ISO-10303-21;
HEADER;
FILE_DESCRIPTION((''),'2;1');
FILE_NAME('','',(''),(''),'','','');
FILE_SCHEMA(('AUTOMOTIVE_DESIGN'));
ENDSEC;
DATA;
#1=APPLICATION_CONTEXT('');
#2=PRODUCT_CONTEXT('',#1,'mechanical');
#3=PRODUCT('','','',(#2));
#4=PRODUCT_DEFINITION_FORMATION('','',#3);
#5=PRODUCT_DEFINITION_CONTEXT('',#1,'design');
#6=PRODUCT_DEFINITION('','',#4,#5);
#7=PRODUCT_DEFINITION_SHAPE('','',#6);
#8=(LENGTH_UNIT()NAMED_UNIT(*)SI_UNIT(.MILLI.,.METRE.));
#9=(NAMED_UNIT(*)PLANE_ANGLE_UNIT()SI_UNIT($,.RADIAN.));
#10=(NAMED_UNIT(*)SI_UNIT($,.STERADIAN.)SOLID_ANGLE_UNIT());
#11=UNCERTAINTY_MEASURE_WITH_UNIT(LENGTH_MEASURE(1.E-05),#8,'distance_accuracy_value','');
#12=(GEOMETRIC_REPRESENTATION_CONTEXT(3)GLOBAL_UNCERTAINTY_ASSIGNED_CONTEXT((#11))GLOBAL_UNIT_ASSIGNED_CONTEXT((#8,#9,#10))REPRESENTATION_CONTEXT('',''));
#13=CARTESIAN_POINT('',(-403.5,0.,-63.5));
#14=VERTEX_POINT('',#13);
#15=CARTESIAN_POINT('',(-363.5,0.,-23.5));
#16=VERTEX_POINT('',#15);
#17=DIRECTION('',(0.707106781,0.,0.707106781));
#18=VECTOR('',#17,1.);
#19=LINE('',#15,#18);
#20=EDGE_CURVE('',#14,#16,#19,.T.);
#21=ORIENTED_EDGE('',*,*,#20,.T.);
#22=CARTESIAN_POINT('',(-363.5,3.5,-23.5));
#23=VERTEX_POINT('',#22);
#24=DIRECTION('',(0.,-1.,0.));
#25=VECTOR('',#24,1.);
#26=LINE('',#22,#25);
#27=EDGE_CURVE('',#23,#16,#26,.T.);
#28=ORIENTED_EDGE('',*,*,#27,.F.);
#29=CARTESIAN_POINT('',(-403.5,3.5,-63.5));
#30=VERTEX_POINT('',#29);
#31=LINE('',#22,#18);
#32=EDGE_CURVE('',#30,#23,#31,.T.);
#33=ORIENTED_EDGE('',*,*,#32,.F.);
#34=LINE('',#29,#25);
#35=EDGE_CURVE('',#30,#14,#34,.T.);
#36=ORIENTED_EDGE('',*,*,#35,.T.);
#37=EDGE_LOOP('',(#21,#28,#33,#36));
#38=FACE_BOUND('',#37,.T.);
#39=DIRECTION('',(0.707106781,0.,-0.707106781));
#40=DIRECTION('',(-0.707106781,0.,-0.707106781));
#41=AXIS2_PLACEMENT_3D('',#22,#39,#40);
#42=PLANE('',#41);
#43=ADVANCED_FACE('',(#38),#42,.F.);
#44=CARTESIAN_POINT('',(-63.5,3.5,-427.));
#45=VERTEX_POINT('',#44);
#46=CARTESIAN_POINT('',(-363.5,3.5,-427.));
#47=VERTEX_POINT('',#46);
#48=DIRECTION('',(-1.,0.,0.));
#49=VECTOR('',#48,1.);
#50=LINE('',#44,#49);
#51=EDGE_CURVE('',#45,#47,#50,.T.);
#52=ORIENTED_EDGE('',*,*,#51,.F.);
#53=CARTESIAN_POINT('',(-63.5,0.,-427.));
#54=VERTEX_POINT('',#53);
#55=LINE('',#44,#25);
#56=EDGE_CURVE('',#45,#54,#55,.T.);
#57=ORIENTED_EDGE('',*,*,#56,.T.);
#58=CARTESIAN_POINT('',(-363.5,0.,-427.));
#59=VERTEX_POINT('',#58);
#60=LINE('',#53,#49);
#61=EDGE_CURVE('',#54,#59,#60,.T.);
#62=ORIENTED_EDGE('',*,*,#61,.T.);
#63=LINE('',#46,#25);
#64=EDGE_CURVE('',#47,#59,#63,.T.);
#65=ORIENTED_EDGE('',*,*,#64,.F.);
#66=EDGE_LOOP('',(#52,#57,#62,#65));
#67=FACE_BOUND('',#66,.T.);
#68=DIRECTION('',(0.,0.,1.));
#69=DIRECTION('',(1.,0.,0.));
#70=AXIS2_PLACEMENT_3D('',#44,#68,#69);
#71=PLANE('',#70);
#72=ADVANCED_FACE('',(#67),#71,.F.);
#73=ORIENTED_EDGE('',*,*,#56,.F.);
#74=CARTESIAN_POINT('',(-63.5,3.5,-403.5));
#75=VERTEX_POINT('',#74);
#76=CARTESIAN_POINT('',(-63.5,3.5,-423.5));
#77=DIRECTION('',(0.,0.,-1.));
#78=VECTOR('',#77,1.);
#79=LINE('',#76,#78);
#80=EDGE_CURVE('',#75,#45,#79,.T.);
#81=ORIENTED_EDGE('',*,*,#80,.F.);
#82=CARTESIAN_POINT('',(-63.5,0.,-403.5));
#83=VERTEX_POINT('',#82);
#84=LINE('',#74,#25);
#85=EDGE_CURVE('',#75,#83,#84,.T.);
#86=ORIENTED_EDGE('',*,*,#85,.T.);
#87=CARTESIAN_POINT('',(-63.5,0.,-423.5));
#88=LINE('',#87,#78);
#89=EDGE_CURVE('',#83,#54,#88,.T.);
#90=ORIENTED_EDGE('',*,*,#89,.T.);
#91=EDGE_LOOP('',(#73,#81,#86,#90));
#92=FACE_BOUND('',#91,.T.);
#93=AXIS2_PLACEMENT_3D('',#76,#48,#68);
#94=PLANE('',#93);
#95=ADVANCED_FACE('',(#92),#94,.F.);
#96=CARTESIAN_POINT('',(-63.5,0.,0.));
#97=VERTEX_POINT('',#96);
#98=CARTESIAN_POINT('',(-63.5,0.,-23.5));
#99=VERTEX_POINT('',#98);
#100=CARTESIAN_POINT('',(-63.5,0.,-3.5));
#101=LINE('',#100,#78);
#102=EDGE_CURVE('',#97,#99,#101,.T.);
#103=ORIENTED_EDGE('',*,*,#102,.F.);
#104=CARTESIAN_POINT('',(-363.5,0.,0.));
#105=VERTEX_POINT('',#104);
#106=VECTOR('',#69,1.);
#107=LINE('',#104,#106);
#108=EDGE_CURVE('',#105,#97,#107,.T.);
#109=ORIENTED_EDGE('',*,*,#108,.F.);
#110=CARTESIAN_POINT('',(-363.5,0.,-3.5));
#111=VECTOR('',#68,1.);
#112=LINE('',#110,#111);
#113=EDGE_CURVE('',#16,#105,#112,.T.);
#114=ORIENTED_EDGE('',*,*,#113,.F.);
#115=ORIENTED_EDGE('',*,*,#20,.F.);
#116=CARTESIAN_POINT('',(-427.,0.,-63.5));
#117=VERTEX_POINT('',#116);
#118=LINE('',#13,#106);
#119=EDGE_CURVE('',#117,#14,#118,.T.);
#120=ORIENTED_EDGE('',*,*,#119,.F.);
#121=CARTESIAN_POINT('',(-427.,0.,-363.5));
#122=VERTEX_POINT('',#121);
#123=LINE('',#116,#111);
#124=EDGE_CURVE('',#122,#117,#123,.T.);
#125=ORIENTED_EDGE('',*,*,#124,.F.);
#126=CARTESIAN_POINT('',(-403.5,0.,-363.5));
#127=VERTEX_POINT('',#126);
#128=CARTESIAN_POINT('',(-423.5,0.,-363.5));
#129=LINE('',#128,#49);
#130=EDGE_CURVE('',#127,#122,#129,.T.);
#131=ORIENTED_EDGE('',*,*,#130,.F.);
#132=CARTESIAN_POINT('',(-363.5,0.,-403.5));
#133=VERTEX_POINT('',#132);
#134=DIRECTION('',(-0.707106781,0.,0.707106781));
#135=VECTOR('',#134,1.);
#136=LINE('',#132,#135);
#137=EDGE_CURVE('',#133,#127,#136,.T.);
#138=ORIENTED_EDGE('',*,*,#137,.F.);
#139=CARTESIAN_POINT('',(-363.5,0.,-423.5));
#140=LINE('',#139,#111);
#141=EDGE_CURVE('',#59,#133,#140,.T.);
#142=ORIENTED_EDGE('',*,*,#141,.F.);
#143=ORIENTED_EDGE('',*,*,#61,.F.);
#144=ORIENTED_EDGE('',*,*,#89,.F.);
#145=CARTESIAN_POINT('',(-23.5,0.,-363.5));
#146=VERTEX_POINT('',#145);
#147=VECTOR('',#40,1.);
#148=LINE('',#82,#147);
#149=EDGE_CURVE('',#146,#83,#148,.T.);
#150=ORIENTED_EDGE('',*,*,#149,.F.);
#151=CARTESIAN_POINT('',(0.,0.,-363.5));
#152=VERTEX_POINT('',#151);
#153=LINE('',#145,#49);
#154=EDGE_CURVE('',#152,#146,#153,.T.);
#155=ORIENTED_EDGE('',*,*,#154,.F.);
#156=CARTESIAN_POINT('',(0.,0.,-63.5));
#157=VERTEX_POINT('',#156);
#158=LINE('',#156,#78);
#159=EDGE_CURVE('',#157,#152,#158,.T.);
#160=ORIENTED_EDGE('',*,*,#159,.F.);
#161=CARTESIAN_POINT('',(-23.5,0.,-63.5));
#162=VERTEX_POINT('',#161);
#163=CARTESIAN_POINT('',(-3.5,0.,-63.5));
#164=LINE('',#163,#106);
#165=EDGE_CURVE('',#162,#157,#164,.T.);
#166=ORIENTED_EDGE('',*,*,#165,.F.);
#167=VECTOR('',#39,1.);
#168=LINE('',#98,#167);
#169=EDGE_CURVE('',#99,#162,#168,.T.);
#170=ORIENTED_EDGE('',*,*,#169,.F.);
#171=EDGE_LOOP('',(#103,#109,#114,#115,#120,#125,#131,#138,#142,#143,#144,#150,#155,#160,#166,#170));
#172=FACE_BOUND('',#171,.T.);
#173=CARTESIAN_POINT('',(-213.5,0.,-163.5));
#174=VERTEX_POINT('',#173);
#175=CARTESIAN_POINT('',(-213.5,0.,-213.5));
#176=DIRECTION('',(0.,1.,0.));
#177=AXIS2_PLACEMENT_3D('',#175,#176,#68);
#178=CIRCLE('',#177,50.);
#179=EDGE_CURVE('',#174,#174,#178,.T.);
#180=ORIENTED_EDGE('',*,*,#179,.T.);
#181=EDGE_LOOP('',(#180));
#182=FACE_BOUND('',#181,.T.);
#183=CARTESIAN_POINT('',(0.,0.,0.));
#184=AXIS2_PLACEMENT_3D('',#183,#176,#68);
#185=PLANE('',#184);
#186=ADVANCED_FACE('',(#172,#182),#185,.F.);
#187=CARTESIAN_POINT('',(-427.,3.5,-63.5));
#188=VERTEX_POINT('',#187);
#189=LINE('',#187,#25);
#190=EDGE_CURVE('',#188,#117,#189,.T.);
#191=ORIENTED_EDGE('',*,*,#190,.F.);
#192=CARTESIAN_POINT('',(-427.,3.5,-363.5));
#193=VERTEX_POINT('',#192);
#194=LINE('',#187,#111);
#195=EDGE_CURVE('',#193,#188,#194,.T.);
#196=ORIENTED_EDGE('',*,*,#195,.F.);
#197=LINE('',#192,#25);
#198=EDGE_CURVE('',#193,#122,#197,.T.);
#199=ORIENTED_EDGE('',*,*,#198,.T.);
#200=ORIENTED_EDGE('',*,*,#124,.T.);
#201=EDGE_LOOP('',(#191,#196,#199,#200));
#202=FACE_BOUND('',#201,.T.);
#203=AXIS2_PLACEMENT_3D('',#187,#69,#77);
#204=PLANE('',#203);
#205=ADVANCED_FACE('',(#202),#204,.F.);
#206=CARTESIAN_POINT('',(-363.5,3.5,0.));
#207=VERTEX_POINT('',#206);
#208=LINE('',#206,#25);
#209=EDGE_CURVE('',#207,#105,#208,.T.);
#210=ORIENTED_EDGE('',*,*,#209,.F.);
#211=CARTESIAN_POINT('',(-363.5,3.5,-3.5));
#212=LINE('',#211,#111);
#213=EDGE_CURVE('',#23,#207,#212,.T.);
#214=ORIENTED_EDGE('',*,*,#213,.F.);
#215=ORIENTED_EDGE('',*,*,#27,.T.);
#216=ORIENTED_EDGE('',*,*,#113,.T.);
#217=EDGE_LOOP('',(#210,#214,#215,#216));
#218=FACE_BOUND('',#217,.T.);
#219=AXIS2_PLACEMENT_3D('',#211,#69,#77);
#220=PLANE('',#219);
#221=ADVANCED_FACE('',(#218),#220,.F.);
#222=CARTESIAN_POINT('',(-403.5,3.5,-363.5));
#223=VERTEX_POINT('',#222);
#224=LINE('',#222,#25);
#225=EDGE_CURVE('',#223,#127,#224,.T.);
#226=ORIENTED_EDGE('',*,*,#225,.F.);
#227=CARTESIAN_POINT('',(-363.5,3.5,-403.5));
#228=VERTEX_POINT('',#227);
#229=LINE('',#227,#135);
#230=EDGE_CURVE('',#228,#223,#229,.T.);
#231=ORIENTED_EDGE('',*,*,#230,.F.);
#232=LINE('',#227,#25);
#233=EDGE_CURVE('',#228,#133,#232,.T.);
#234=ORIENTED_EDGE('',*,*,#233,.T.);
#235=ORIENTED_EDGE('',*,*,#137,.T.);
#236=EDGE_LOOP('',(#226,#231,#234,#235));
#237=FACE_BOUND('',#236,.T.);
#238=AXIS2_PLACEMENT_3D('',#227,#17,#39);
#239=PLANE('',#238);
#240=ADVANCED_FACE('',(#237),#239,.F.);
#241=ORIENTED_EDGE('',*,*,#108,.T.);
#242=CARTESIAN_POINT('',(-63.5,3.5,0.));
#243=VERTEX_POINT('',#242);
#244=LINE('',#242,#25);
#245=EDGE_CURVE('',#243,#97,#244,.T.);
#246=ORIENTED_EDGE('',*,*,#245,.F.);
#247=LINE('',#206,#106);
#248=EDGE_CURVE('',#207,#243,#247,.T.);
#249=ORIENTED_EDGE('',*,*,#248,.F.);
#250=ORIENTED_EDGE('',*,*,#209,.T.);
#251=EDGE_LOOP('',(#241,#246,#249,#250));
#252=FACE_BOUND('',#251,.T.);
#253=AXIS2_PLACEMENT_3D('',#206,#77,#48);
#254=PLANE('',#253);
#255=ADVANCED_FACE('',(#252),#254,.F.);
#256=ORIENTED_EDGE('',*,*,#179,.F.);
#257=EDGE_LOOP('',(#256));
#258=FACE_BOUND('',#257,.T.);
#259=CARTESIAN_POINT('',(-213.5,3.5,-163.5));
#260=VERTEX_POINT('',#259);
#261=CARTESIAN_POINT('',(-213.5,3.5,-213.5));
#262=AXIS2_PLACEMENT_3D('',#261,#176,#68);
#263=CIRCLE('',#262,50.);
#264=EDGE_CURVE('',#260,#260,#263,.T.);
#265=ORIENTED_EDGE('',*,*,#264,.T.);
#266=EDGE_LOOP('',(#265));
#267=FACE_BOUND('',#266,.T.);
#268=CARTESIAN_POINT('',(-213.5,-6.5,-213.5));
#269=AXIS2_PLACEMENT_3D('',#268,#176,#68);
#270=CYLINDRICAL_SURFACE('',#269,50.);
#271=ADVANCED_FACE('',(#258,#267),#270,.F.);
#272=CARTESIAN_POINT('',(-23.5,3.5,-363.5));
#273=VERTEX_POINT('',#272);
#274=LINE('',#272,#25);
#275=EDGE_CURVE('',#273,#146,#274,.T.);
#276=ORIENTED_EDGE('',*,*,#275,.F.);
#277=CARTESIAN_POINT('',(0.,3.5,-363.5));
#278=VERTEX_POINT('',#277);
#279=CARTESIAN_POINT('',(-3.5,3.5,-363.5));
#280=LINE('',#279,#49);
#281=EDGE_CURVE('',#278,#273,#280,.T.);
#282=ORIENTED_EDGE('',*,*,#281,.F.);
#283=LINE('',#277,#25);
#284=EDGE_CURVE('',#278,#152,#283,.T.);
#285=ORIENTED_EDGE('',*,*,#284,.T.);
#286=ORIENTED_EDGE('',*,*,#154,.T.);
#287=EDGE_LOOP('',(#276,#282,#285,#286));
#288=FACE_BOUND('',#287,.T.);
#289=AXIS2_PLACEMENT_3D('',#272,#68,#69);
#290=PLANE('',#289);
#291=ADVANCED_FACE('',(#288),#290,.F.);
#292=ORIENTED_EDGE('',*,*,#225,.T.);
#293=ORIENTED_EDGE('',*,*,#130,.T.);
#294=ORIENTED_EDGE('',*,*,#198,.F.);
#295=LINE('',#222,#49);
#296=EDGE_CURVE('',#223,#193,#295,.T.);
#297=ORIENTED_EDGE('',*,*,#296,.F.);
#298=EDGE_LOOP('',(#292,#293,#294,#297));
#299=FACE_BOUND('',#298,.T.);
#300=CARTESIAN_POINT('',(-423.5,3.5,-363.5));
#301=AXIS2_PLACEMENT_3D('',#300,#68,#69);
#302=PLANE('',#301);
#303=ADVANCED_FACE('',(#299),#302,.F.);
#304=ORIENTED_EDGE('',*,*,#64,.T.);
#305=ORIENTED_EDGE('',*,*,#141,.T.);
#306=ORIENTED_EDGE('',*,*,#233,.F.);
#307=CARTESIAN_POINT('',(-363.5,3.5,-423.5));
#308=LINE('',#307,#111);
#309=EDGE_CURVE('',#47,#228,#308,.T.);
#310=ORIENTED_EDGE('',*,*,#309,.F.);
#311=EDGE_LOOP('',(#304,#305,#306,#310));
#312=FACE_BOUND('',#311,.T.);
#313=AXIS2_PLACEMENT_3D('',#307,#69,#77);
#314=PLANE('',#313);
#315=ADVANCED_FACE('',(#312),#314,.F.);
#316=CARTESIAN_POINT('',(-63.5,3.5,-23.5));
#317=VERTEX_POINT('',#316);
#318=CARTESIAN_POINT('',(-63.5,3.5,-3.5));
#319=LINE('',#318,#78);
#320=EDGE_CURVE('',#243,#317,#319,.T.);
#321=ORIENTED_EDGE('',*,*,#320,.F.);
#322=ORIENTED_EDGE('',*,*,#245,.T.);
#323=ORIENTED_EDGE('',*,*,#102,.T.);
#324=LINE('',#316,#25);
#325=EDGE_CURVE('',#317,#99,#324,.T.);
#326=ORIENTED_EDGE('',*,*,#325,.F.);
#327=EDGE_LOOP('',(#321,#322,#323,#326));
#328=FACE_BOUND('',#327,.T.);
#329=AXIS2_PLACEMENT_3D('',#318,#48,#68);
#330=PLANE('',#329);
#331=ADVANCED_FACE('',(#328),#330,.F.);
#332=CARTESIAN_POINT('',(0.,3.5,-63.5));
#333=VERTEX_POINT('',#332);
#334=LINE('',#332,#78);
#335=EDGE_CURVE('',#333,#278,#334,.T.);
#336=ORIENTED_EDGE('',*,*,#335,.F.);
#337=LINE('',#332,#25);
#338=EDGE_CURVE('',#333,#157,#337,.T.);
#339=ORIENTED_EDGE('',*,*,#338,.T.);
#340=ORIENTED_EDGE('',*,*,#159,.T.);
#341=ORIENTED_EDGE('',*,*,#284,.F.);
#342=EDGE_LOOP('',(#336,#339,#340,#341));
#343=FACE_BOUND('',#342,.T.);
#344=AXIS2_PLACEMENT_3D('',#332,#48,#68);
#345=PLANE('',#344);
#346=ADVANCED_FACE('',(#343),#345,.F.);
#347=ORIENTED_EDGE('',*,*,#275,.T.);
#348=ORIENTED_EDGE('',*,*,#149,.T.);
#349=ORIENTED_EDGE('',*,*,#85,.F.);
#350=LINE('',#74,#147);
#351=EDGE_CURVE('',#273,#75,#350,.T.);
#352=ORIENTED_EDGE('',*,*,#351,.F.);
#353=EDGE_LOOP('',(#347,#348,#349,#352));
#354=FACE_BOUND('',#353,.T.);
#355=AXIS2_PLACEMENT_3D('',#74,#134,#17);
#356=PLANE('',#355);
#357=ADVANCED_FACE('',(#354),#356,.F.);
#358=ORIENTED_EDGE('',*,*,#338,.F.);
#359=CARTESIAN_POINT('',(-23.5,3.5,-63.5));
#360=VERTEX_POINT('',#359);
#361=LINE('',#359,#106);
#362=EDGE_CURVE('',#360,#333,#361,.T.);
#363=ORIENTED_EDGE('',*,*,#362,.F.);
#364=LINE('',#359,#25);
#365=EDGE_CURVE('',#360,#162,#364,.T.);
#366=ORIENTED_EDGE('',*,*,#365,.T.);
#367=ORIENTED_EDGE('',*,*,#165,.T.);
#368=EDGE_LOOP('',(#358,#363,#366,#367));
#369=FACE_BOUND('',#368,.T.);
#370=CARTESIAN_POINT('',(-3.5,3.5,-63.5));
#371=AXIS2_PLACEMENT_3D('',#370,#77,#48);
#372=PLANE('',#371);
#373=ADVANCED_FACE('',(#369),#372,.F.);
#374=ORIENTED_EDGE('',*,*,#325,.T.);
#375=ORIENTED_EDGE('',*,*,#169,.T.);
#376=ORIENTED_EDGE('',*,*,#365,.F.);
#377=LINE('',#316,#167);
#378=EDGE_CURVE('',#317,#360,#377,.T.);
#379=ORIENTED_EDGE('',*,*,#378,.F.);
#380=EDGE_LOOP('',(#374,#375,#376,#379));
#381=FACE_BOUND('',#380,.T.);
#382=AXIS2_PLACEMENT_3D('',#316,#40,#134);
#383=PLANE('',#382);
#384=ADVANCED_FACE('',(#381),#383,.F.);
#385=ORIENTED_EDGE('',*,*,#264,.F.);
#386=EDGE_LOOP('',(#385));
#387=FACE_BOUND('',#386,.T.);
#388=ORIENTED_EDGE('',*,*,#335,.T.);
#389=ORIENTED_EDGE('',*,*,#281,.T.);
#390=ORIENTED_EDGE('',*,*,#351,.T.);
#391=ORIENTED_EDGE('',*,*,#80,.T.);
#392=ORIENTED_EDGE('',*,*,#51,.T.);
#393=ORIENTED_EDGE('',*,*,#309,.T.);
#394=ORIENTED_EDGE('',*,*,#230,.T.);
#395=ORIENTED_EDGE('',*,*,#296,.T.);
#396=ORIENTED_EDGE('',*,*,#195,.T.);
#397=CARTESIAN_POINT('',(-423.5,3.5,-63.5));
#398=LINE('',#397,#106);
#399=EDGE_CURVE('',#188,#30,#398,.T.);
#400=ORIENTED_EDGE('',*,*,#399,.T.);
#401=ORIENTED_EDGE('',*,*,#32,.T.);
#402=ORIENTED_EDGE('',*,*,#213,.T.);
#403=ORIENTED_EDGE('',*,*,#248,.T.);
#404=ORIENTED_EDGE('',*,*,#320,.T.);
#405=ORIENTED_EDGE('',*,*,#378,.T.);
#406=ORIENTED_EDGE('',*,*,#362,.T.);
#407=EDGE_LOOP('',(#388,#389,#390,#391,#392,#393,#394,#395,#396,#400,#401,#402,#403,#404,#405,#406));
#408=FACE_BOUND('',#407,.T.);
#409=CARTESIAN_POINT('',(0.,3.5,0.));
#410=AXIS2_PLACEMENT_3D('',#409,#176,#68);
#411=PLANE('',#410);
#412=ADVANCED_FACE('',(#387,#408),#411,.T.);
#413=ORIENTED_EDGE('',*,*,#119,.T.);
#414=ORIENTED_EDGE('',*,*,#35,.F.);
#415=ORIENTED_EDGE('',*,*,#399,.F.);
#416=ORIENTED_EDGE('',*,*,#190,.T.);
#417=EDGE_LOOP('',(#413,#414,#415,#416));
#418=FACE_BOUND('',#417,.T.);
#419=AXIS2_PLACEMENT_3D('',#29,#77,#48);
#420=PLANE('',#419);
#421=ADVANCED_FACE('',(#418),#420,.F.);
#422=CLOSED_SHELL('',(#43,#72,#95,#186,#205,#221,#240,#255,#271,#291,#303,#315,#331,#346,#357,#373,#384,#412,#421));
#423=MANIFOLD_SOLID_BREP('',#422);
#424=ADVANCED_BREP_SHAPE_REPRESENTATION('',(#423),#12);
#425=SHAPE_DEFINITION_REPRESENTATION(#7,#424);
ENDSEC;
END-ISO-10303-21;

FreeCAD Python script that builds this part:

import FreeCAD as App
import Part
import Sketcher

V = App.Vector

doc = App.newDocument("Part")
body = doc.addObject("PartDesign::Body", "Body")

# Sketch on XZ plane
sketch1 = doc.addObject("Sketcher::SketchObject", "Sketch")
body.addObject(sketch1)
sketch1.AttachmentSupport = (doc.XZ_Plane, [""])
sketch1.MapMode = "FlatFace"
sketch1.addGeometry(Part.LineSegment(V(-364, -404, 0), V(-404, -364, 0)), False)
sketch1.addGeometry(Part.LineSegment(V(-404, -364, 0), V(-427, -364, 0)), False)
sketch1.addGeometry(Part.LineSegment(V(-427, -364, 0), V(-427, -64, 0)), False)
sketch1.addGeometry(Part.LineSegment(V(-427, -64, 0), V(-404, -64, 0)), False)
sketch1.addGeometry(Part.LineSegment(V(-404, -64, 0), V(-364, -24, 0)), False)
sketch1.addGeometry(Part.LineSegment(V(-364, -24, 0), V(-364, 0, 0)), False)
sketch1.addGeometry(Part.LineSegment(V(-364, 0, 0), V(-64, 0, 0)), False)
sketch1.addGeometry(Part.LineSegment(V(-64, 0, 0), V(-64, -24, 0)), False)
sketch1.addGeometry(Part.LineSegment(V(-64, -24, 0), V(-24, -64, 0)), False)
sketch1.addGeometry(Part.LineSegment(V(-24, -64, 0), V(0, -64, 0)), False)
sketch1.addGeometry(Part.LineSegment(V(0, -64, 0), V(0, -364, 0)), False)
sketch1.addGeometry(Part.LineSegment(V(0, -364, 0), V(-24, -364, 0)), False)
sketch1.addGeometry(Part.LineSegment(V(-24, -364, 0), V(-64, -404, 0)), False)
sketch1.addGeometry(Part.LineSegment(V(-64, -404, 0), V(-64, -427, 0)), False)
sketch1.addGeometry(Part.LineSegment(V(-64, -427, 0), V(-364, -427, 0)), False)
sketch1.addGeometry(Part.LineSegment(V(-364, -427, 0), V(-364, -404, 0)), False)
sketch1.addConstraint(Sketcher.Constraint("Coincident", 0, 2, 1, 1))
sketch1.addConstraint(Sketcher.Constraint("Coincident", 1, 2, 2, 1))
sketch1.addConstraint(Sketcher.Constraint("Coincident", 2, 2, 3, 1))
sketch1.addConstraint(Sketcher.Constraint("Coincident", 3, 2, 4, 1))
sketch1.addConstraint(Sketcher.Constraint("Coincident", 4, 2, 5, 1))
sketch1.addConstraint(Sketcher.Constraint("Coincident", 5, 2, 6, 1))
sketch1.addConstraint(Sketcher.Constraint("Coincident", 6, 2, 7, 1))
sketch1.addConstraint(Sketcher.Constraint("Coincident", 7, 2, 8, 1))
sketch1.addConstraint(Sketcher.Constraint("Coincident", 8, 2, 9, 1))
sketch1.addConstraint(Sketcher.Constraint("Coincident", 9, 2, 10, 1))
sketch1.addConstraint(Sketcher.Constraint("Coincident", 10, 2, 11, 1))
sketch1.addConstraint(Sketcher.Constraint("Coincident", 11, 2, 12, 1))
sketch1.addConstraint(Sketcher.Constraint("Coincident", 12, 2, 13, 1))
sketch1.addConstraint(Sketcher.Constraint("Coincident", 13, 2, 14, 1))
sketch1.addConstraint(Sketcher.Constraint("Coincident", 14, 2, 15, 1))
sketch1.addConstraint(Sketcher.Constraint("Coincident", 15, 2, 0, 1))
sketch1.addConstraint(Sketcher.Constraint("Horizontal", 1))
sketch1.addConstraint(Sketcher.Constraint("Vertical", 2))
sketch1.addConstraint(Sketcher.Constraint("Horizontal", 3))
sketch1.addConstraint(Sketcher.Constraint("Vertical", 5))
sketch1.addConstraint(Sketcher.Constraint("Horizontal", 6))
sketch1.addConstraint(Sketcher.Constraint("Vertical", 7))
sketch1.addConstraint(Sketcher.Constraint("Horizontal", 9))
sketch1.addConstraint(Sketcher.Constraint("Vertical", 10))
sketch1.addConstraint(Sketcher.Constraint("Horizontal", 11))
sketch1.addConstraint(Sketcher.Constraint("Vertical", 13))
sketch1.addConstraint(Sketcher.Constraint("Horizontal", 14))
sketch1.addConstraint(Sketcher.Constraint("Vertical", 15))
sketch1.addConstraint(Sketcher.Constraint("PointOnObject", 5, 2, -1))
sketch1.addConstraint(Sketcher.Constraint("PointOnObject", 9, 2, -2))
sketch1.addConstraint(Sketcher.Constraint("Perpendicular", 0, 4))
sketch1.addConstraint(Sketcher.Constraint("Perpendicular", 4, 8))
sketch1.addConstraint(Sketcher.Constraint("Perpendicular", 8, 12))
sketch1.addConstraint(Sketcher.Constraint("Horizontal", 4, 2, 7, 2))
sketch1.addConstraint(Sketcher.Constraint("Horizontal", 3, 2, 8, 2))
sketch1.addConstraint(Sketcher.Constraint("Horizontal", 1, 2, 10, 2))
sketch1.addConstraint(Sketcher.Constraint("Horizontal", 12, 2, 15, 2))
sketch1.addConstraint(Sketcher.Constraint("Vertical", 0, 2, 3, 2))
sketch1.addConstraint(Sketcher.Constraint("Vertical", 8, 2, 11, 2))
sketch1.addConstraint(Sketcher.Constraint("Vertical", 7, 2, 12, 2))
sketch1.addConstraint(Sketcher.Constraint("Vertical", 5, 2, 14, 2))
sketch1.addConstraint(Sketcher.Constraint("Equal", 3, 9))
sketch1.addConstraint(Sketcher.Constraint("Equal", 14, 2))
sketch1.addConstraint(Sketcher.Constraint("Equal", 11, 5))
sketch1.addConstraint(Sketcher.Constraint("Equal", 7, 13))
sketch1.addConstraint(Sketcher.Constraint("DistanceX", 6, 1, 6, 2, 300.0))
sketch1.addConstraint(Sketcher.Constraint("DistanceX", 1, 2, 1, 1, 23.5))
sketch1.addConstraint(Sketcher.Constraint("DistanceX", 1, 2, -1, 1, 427.0))
pad1 = doc.addObject("PartDesign::Pad", "Pad")
body.addObject(pad1)
pad1.Profile = sketch1
pad1.Length = 3.5
pad1.Reversed = True

# Sketch on XZ plane
sketch2 = doc.addObject("Sketcher::SketchObject", "Sketch001")
body.addObject(sketch2)
sketch2.AttachmentSupport = (doc.XZ_Plane, [""])
sketch2.MapMode = "FlatFace"
sketch2.AttachmentOffset = App.Placement(V(0, 0, -3.5), App.Rotation())
sketch2.addGeometry(Part.Circle(V(-214, -214, 0), V(0, 0, 1), 50), False)
sketch2.addConstraint(Sketcher.Constraint("Diameter", 0, 100.0))
sketch2.addConstraint(Sketcher.Constraint("DistanceX", 0, 3, -1, 1, 213.5))
sketch2.addConstraint(Sketcher.Constraint("DistanceY", 0, 3, -1, 1, 213.5))
pocket1 = doc.addObject("PartDesign::Pocket", "Pocket")
body.addObject(pocket1)
pocket1.Profile = sketch2
pocket1.Length = 10
pocket1.Reversed = True

doc.recompute()
